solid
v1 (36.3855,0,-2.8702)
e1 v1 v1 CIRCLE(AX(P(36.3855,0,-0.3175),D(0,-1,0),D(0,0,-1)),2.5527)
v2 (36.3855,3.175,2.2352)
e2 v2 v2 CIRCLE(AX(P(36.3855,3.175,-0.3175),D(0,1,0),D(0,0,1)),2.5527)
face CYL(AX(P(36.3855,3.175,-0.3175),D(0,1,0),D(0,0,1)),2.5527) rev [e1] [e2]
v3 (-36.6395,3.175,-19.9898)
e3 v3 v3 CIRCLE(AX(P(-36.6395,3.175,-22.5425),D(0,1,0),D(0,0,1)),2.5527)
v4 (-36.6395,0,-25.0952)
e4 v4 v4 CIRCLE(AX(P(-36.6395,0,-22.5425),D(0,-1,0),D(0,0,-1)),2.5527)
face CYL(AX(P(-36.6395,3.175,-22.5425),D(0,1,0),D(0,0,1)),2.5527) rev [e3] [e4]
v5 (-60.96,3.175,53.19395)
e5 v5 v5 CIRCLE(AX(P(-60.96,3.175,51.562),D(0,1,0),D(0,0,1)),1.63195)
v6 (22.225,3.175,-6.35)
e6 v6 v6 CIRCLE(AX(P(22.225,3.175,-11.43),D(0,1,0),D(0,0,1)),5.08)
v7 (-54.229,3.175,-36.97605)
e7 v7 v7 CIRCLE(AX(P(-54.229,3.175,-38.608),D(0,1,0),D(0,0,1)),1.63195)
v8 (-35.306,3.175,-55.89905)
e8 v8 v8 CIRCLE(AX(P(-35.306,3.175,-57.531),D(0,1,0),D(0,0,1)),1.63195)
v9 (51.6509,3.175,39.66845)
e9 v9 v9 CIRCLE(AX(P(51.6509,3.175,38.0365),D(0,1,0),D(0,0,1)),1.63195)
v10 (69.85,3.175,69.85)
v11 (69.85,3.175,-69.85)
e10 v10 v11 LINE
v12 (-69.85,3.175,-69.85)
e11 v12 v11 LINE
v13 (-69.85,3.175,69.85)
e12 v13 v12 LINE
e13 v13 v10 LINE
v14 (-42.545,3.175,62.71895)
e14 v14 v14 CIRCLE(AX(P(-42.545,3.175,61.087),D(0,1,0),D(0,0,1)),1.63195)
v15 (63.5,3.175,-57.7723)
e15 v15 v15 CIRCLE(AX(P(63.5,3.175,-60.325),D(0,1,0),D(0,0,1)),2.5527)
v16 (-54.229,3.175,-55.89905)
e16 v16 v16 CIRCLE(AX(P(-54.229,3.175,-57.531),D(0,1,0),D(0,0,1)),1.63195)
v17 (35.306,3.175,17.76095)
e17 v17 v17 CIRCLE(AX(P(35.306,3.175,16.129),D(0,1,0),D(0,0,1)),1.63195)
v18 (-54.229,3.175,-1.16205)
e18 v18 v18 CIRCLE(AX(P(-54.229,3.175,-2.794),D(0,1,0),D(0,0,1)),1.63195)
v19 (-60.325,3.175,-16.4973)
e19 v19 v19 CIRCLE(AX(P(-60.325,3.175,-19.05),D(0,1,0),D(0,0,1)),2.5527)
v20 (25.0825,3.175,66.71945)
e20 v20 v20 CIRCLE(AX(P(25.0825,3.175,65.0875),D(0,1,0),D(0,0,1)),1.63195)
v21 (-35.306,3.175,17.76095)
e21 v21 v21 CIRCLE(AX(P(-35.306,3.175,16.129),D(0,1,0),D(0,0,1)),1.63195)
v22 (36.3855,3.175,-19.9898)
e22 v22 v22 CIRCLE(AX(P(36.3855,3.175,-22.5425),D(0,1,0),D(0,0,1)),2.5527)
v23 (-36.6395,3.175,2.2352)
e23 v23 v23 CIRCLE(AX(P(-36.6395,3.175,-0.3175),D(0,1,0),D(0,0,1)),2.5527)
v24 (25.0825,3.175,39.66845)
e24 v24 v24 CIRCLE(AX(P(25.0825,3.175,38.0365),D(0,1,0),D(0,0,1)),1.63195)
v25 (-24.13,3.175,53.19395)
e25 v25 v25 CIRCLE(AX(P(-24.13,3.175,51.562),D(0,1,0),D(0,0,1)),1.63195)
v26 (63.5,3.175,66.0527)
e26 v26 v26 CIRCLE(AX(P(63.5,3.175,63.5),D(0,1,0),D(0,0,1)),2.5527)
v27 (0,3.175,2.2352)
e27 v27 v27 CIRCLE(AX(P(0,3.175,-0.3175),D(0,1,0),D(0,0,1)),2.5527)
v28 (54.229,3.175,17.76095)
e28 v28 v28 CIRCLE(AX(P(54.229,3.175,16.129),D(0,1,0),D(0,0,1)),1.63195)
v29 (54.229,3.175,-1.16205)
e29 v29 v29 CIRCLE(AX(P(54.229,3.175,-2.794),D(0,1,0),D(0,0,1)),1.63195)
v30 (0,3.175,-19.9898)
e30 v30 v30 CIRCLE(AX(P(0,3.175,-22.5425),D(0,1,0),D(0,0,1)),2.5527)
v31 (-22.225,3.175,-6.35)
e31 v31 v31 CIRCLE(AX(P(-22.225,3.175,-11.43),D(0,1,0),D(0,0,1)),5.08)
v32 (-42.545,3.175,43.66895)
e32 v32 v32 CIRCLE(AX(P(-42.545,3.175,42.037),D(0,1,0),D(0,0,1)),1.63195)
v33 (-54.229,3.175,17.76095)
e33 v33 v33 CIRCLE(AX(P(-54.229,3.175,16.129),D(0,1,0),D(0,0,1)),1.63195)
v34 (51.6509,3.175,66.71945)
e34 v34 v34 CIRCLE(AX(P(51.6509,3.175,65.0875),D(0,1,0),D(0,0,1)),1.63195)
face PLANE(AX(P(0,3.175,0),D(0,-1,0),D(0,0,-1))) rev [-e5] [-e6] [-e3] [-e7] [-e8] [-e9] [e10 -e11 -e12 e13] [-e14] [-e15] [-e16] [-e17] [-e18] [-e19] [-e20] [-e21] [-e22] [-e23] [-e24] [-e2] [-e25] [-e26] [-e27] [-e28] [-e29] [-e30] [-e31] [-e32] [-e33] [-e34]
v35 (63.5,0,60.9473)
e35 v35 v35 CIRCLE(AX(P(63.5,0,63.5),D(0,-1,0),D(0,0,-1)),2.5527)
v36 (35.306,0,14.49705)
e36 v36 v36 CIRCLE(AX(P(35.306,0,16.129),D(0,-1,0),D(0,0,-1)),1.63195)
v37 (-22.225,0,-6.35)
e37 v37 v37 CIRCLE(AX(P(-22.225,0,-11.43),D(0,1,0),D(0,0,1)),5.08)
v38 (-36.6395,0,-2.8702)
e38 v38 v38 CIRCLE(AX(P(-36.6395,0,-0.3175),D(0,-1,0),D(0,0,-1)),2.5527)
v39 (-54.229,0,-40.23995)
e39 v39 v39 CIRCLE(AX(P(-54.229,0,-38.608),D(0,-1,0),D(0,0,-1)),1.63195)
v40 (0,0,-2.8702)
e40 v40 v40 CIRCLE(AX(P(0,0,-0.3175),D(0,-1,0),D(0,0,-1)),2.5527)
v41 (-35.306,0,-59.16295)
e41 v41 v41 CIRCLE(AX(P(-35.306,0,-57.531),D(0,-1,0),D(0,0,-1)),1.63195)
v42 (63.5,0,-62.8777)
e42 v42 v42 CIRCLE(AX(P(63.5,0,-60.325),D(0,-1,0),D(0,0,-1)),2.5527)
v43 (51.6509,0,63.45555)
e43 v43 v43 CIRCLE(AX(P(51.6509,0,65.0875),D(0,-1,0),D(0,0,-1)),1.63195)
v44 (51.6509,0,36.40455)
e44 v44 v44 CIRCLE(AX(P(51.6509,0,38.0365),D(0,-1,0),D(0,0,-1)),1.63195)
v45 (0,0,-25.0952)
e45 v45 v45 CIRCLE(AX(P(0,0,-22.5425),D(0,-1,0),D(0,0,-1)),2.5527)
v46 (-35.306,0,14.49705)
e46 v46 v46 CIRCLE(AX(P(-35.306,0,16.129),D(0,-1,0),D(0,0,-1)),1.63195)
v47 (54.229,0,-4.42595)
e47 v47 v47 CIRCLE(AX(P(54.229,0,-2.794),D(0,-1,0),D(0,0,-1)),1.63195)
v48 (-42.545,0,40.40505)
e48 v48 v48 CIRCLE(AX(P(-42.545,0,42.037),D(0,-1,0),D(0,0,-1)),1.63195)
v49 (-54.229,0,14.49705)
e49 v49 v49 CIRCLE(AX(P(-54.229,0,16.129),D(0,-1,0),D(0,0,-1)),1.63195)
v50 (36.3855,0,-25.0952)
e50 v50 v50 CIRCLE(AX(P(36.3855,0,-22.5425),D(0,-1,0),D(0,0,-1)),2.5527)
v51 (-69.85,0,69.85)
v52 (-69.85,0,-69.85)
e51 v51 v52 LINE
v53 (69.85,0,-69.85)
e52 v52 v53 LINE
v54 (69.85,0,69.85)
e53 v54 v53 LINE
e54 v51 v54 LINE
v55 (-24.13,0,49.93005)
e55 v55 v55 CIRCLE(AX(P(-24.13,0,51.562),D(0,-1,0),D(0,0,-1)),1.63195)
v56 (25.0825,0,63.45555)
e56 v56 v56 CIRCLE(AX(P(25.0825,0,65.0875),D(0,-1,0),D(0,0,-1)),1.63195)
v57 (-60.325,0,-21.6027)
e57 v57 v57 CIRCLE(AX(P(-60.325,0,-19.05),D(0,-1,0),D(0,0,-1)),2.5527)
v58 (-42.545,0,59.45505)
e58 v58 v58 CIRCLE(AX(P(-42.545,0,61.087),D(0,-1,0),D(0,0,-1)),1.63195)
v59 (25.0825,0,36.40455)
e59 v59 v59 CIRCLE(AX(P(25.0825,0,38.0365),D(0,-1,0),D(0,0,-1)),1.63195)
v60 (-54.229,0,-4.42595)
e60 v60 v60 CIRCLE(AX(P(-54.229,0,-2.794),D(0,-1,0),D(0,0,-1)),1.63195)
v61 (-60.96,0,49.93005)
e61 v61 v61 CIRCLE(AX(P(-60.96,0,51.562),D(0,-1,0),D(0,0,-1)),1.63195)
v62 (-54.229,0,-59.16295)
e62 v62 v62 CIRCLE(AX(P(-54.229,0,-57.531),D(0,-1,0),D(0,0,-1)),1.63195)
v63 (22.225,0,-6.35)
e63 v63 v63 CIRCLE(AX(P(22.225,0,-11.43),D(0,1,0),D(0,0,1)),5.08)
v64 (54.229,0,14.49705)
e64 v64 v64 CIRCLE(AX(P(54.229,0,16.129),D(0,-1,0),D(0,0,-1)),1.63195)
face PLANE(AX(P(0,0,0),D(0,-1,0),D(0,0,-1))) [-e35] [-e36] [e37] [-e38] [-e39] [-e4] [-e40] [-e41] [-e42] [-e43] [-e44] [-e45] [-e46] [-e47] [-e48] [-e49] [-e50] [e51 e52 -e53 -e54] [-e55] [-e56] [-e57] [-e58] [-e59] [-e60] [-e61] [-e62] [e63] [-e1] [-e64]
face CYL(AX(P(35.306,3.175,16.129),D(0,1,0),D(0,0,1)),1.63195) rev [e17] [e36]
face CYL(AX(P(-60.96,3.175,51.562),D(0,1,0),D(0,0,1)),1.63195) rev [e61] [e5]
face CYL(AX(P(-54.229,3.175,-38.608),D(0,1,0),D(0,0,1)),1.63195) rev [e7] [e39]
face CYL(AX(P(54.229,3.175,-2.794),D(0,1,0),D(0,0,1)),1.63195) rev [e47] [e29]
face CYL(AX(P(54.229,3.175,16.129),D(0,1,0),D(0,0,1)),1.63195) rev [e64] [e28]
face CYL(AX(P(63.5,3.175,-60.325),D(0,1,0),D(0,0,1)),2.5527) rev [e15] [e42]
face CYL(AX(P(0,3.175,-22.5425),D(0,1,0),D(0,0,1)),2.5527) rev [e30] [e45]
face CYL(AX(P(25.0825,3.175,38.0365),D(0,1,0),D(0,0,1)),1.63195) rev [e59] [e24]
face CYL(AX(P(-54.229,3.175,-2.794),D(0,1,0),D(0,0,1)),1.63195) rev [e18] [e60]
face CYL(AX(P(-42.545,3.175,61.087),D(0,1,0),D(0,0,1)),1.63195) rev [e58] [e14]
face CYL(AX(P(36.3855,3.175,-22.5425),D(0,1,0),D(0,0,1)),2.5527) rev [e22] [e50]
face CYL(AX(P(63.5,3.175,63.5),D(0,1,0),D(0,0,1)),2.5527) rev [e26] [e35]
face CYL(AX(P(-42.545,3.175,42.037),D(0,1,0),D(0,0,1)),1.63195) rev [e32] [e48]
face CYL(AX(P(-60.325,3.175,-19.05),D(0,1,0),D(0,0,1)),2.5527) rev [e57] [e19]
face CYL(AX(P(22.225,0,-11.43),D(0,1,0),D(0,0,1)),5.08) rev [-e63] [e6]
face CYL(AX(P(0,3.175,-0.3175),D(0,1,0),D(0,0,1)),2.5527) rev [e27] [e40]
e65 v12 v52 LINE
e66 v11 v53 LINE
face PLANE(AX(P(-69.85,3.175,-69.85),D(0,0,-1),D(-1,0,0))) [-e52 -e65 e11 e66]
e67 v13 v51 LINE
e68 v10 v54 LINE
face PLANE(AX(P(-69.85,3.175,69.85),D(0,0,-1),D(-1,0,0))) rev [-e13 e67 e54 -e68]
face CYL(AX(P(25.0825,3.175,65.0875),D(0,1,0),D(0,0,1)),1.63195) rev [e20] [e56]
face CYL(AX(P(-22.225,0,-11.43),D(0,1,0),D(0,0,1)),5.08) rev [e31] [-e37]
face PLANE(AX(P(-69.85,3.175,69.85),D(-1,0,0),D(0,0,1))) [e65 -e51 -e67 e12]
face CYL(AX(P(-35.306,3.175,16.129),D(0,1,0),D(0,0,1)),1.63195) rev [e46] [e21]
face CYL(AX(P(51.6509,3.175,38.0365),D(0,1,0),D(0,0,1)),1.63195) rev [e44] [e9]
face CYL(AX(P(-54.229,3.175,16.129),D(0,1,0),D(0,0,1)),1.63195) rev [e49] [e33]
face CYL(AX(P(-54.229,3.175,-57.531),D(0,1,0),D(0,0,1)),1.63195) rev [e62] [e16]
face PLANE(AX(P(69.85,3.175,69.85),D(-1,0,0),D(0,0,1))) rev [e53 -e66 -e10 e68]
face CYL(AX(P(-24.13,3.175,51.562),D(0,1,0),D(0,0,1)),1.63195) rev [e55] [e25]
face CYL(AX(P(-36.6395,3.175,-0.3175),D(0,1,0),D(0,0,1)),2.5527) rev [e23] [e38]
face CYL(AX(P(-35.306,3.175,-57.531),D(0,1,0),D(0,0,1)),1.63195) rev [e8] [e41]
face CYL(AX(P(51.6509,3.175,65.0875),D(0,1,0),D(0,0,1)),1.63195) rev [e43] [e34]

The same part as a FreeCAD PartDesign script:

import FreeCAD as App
import Part
import Sketcher
Q = App.Units.Quantity


def add_polygon(sketch, points):
    """Adds a closed chain of lines whose ends are joined by coincident constraints."""
    first, n = sketch.GeometryCount, len(points)
    for a, b in zip(points, points[1:] + points[:1]):
        sketch.addGeometry(Part.LineSegment(App.Vector(*a, 0), App.Vector(*b, 0)), False)
    for i in range(n):
        sketch.addConstraint(Sketcher.Constraint("Coincident", first + i, 2, first + (i + 1) % n, 1))

doc = App.newDocument("Part")
body = doc.addObject("PartDesign::Body", "Body")

# Sketch on XZ plane
sketch1 = body.newObject("Sketcher::SketchObject", "Sketch")
sketch1.AttachmentSupport = (doc.getObject("XZ_Plane"), [""])
sketch1.MapMode = "FlatFace"
add_polygon(sketch1, [(-70, -70), (-70, 70), (70, 70), (70, -70)])  # lines 0-3
sketch1.addConstraint([
    Sketcher.Constraint("Vertical", 0),
    Sketcher.Constraint("Horizontal", 1),
    Sketcher.Constraint("Vertical", 2),
    Sketcher.Constraint("Horizontal", 3),
    Sketcher.Constraint("Symmetric", 0, 2, 2, 2, -1, 1),
    Sketcher.Constraint("Equal", 3, 0),
    Sketcher.Constraint("DistanceX", 1, 1, 1, 2, Q("5.5 in")),
])
pad1 = body.newObject("PartDesign::Pad", "Pad")
pad1.Profile = sketch1
pad1.Length = Q("0.125 in")
pad1.Reversed = True

# Sketch on XZ plane
sketch2 = body.newObject("Sketcher::SketchObject", "Sketch001")
sketch2.AttachmentSupport = (doc.getObject("XZ_Plane"), [""])
sketch2.MapMode = "FlatFace"
sketch2.AttachmentOffset = App.Placement(App.Vector(0, 0, -0.125 * 25.4), App.Rotation())
sketch2.addGeometry([
    Part.Circle(App.Vector(-22, -11, 0), App.Vector(0, 0, 1), 5),
    Part.Circle(App.Vector(22, -11, 0), App.Vector(0, 0, 1), 5),
], False)
sketch2.addConstraint([
    Sketcher.Constraint("Equal", 0, 1),
    Sketcher.Constraint("Symmetric", 0, 3, 1, 3, -2),
    Sketcher.Constraint("Diameter", 0, Q("0.4 in")),
    Sketcher.Constraint("DistanceY", 0, 3, -1, 1, Q("0.45 in")),
    Sketcher.Constraint("DistanceX", 0, 3, 1, 3, Q("1.75 in")),
])
pocket1 = body.newObject("PartDesign::Pocket", "Pocket")
pocket1.Profile = sketch2
pocket1.Type = "ThroughAll"
pocket1.Reversed = True

# Sketch on XZ plane
sketch3 = body.newObject("Sketcher::SketchObject", "Sketch002")
sketch3.AttachmentSupport = (doc.getObject("XZ_Plane"), [""])
sketch3.MapMode = "FlatFace"
sketch3.AttachmentOffset = App.Placement(App.Vector(0, 0, -0.125 * 25.4), App.Rotation())
sketch3.addGeometry([
    Part.Circle(App.Vector(63.5, 63.5, 0), App.Vector(0, 0, 1), 2.6),
    Part.Circle(App.Vector(-60.3, -19.1, 0), App.Vector(0, 0, 1), 2.6),
    Part.Circle(App.Vector(63.5, -60.3, 0), App.Vector(0, 0, 1), 2.6),
], False)
sketch3.addConstraint([
    Sketcher.Constraint("Equal", 0, 1),
    Sketcher.Constraint("Equal", 1, 2),
    Sketcher.Constraint("Vertical", 0, 3, 2, 3),
    Sketcher.Constraint("Diameter", 0, Q("0.201 in")),
    Sketcher.Constraint("DistanceX", -1, 1, 0, 3, Q("2.5 in")),
    Sketcher.Constraint("DistanceY", -1, 1, 0, 3, Q("2.5 in")),
    Sketcher.Constraint("DistanceY", 1, 3, -1, 1, Q("0.75 in")),
    Sketcher.Constraint("DistanceX", 1, 3, -1, 1, Q("2.375 in")),
    Sketcher.Constraint("DistanceY", 2, 3, -1, 1, Q("2.375 in")),
])
doc.recompute()
hole = body.newObject("PartDesign::Hole", "Hole")
hole.Profile = sketch3
hole.ThreadType = "None"
hole.Diameter = Q("0.201 in")
hole.DepthType = "ThroughAll"
hole.Reversed = True

# Sketch on XZ plane
sketch4 = body.newObject("Sketcher::SketchObject", "Sketch003")
sketch4.AttachmentSupport = (doc.getObject("XZ_Plane"), [""])
sketch4.MapMode = "FlatFace"
sketch4.AttachmentOffset = App.Placement(App.Vector(0, 0, -0.125 * 25.4), App.Rotation())
sketch4.addGeometry([
    Part.Circle(App.Vector(-61, 51.6, 0), App.Vector(0, 0, 1), 1.6),
    Part.Circle(App.Vector(-42.5, 42, 0), App.Vector(0, 0, 1), 1.6),
    Part.Circle(App.Vector(-24.1, 51.6, 0), App.Vector(0, 0, 1), 1.6),
    Part.Circle(App.Vector(-42.5, 61.1, 0), App.Vector(0, 0, 1), 1.6),
], False)
sketch4.addConstraint([
    Sketcher.Constraint("Equal", 0, 1),
    Sketcher.Constraint("Equal", 1, 2),
    Sketcher.Constraint("Equal", 2, 3),
    Sketcher.Constraint("Horizontal", 0, 3, 2, 3),
    Sketcher.Constraint("Vertical", 1, 3, 3, 3),
    Sketcher.Constraint("Diameter", 0, Q("0.1285 in")),
    Sketcher.Constraint("DistanceX", 0, 3, -1, 1, Q("2.4 in")),
    Sketcher.Constraint("DistanceY", -1, 1, 0, 3, Q("2.03 in")),
    Sketcher.Constraint("DistanceX", 2, 3, -1, 1, Q("0.95 in")),
    Sketcher.Constraint("DistanceY", 1, 3, 3, 3, Q("0.75 in")),
    Sketcher.Constraint("DistanceX", 1, 3, -1, 1, Q("1.675 in")),
    Sketcher.Constraint("DistanceY", -1, 1, 1, 3, Q("1.655 in")),
])
doc.recompute()
hole2 = body.newObject("PartDesign::Hole", "Hole001")
hole2.Profile = sketch4
hole2.ThreadType = "None"
hole2.Diameter = Q("0.1285 in")
hole2.DepthType = "Dimension"
hole2.Depth = Q("0.3 in")
hole2.DrillPoint = "Angled"
hole2.DrillPointAngle = 118
hole2.Reversed = True

# Sketch on XZ plane
sketch5 = body.newObject("Sketcher::SketchObject", "Sketch004")
sketch5.AttachmentSupport = (doc.getObject("XZ_Plane"), [""])
sketch5.MapMode = "FlatFace"
sketch5.AttachmentOffset = App.Placement(App.Vector(0, 0, -0.125 * 25.4), App.Rotation())
sketch5.addGeometry([
    Part.Circle(App.Vector(25.1, 38, 0), App.Vector(0, 0, 1), 1.6),
    Part.Circle(App.Vector(51.7, 38, 0), App.Vector(0, 0, 1), 1.6),
    Part.Circle(App.Vector(25.1, 65.1, 0), App.Vector(0, 0, 1), 1.6),
    Part.Circle(App.Vector(51.7, 65.1, 0), App.Vector(0, 0, 1), 1.6),
], False)
sketch5.addConstraint([
    Sketcher.Constraint("Equal", 0, 1),
    Sketcher.Constraint("Equal", 1, 2),
    Sketcher.Constraint("Equal", 2, 3),
    Sketcher.Constraint("Horizontal", 0, 3, 1, 3),
    Sketcher.Constraint("Horizontal", 2, 3, 3, 3),
    Sketcher.Constraint("Vertical", 0, 3, 2, 3),
    Sketcher.Constraint("Vertical", 1, 3, 3, 3),
    Sketcher.Constraint("Diameter", 0, Q("0.1285 in")),
    Sketcher.Constraint("DistanceY", -1, 1, 2, 3, Q("2.5625 in")),
    Sketcher.Constraint("DistanceX", 0, 3, 1, 3, Q("1.046 in")),
    Sketcher.Constraint("DistanceY", 0, 3, 2, 3, Q("1.065 in")),
    Sketcher.Constraint("DistanceX", -1, 1, 0, 3, Q("0.9875 in")),
])
doc.recompute()
hole3 = body.newObject("PartDesign::Hole", "Hole002")
hole3.Profile = sketch5
hole3.ThreadType = "None"
hole3.Diameter = Q("0.1285 in")
hole3.DepthType = "Dimension"
hole3.Depth = Q("0.3 in")
hole3.DrillPoint = "Angled"
hole3.DrillPointAngle = 118
hole3.Reversed = True

# Sketch on XZ plane
sketch6 = body.newObject("Sketcher::SketchObject", "Sketch005")
sketch6.AttachmentSupport = (doc.getObject("XZ_Plane"), [""])
sketch6.MapMode = "FlatFace"
sketch6.AttachmentOffset = App.Placement(App.Vector(0, 0, -0.125 * 25.4), App.Rotation())
sketch6.addGeometry([
    Part.Circle(App.Vector(-36.6, -22.5, 0), App.Vector(0, 0, 1), 2.6),  # 0
    Part.Circle(App.Vector(36.4, -22.5, 0), App.Vector(0, 0, 1), 2.6),  # 1
    Part.Circle(App.Vector(36.4, -0.3, 0), App.Vector(0, 0, 1), 2.6),  # 2
    Part.Circle(App.Vector(-36.6, -0.3, 0), App.Vector(0, 0, 1), 2.6),  # 3
    Part.Circle(App.Vector(0, -0.3, 0), App.Vector(0, 0, 1), 2.6),  # 4
    Part.Circle(App.Vector(0, -22.5, 0), App.Vector(0, 0, 1), 2.6),  # 5
], False)
sketch6.addConstraint([
    Sketcher.Constraint("Equal", 0, 1),
    Sketcher.Constraint("Equal", 1, 2),
    Sketcher.Constraint("Equal", 2, 3),
    Sketcher.Constraint("Equal", 3, 4),
    Sketcher.Constraint("Equal", 4, 5),
    Sketcher.Constraint("PointOnObject", 4, 3, -2),
    Sketcher.Constraint("PointOnObject", 5, 3, -2),
    Sketcher.Constraint("Horizontal", 0, 3, 1, 3),
    Sketcher.Constraint("Horizontal", 2, 3, 3, 3),
    Sketcher.Constraint("Horizontal", 3, 3, 4, 3),
    Sketcher.Constraint("Horizontal", 1, 3, 5, 3),
    Sketcher.Constraint("Vertical", 1, 3, 2, 3),
    Sketcher.Constraint("Vertical", 0, 3, 3, 3),
    Sketcher.Constraint("Diameter", 0, Q("0.201 in")),
    Sketcher.Constraint("DistanceX", 0, 3, 1, 3, Q("2.875 in")),
    Sketcher.Constraint("DistanceY", 1, 3, 2, 3, Q("0.875 in")),
    Sketcher.Constraint("DistanceX", 0, 3, -1, 1, Q("1.4425 in")),
    Sketcher.Constraint("DistanceY", 0, 3, -1, 1, Q("0.8875 in")),
])
doc.recompute()
hole4 = body.newObject("PartDesign::Hole", "Hole003")
hole4.Profile = sketch6
hole4.ThreadType = "None"
hole4.Diameter = Q("0.201 in")
hole4.DepthType = "Dimension"
hole4.Depth = Q("0.3 in")
hole4.DrillPoint = "Angled"
hole4.DrillPointAngle = 118
hole4.Reversed = True

# Sketch on XZ plane
sketch7 = body.newObject("Sketcher::SketchObject", "Sketch006")
sketch7.AttachmentSupport = (doc.getObject("XZ_Plane"), [""])
sketch7.MapMode = "FlatFace"
sketch7.AttachmentOffset = App.Placement(App.Vector(0, 0, -0.125 * 25.4), App.Rotation())
sketch7.addGeometry([
    Part.Circle(App.Vector(-35.3, -57.5, 0), App.Vector(0, 0, 1), 1.6),  # 0
    Part.Circle(App.Vector(-54.2, -57.5, 0), App.Vector(0, 0, 1), 1.6),  # 1
    Part.Circle(App.Vector(-54.2, -38.6, 0), App.Vector(0, 0, 1), 1.6),  # 2
    Part.Circle(App.Vector(-54.2, -2.8, 0), App.Vector(0, 0, 1), 1.6),  # 3
    Part.Circle(App.Vector(-54.2, 16.1, 0), App.Vector(0, 0, 1), 1.6),  # 4
    Part.Circle(App.Vector(-35.3, 16.1, 0), App.Vector(0, 0, 1), 1.6),  # 5
    Part.Circle(App.Vector(35.3, 16.1, 0), App.Vector(0, 0, 1), 1.6),  # 6
    Part.Circle(App.Vector(54.2, 16.1, 0), App.Vector(0, 0, 1), 1.6),  # 7
    Part.Circle(App.Vector(54.2, -2.8, 0), App.Vector(0, 0, 1), 1.6),  # 8
], False)
sketch7.addConstraint([
    Sketcher.Constraint("Equal", 0, 1),
    Sketcher.Constraint("Equal", 1, 2),
    Sketcher.Constraint("Equal", 2, 3),
    Sketcher.Constraint("Equal", 3, 4),
    Sketcher.Constraint("Equal", 4, 5),
    Sketcher.Constraint("Equal", 5, 6),
    Sketcher.Constraint("Equal", 6, 7),
    Sketcher.Constraint("Equal", 7, 8),
    Sketcher.Constraint("Symmetric", 5, 3, 6, 3, -2),
    Sketcher.Constraint("Symmetric", 4, 3, 7, 3, -2),
    Sketcher.Constraint("Symmetric", 3, 3, 8, 3, -2),
    Sketcher.Constraint("Horizontal", 0, 3, 1, 3),
    Sketcher.Constraint("Horizontal", 4, 3, 5, 3),
    Sketcher.Constraint("Vertical", 1, 3, 2, 3),
    Sketcher.Constraint("Vertical", 2, 3, 3, 3),
    Sketcher.Constraint("Vertical", 3, 3, 4, 3),
    Sketcher.Constraint("Vertical", 0, 3, 5, 3),
    Sketcher.Constraint("Diameter", 0, Q("0.1285 in")),
    Sketcher.Constraint("DistanceY", 1, 3, 4, 3, Q("2.9 in")),
    Sketcher.Constraint("DistanceX", 0, 3, -1, 1, Q("1.39 in")),
    Sketcher.Constraint("DistanceY", 2, 3, -1, 1, Q("1.52 in")),
    Sketcher.Constraint("DistanceY", 3, 3, -1, 1, Q("0.11 in")),
    Sketcher.Constraint("DistanceX", 4, 3, 7, 3, Q("4.27 in")),
    Sketcher.Constraint("DistanceY", 0, 3, -1, 1, Q("2.265 in")),
])
doc.recompute()
hole5 = body.newObject("PartDesign::Hole", "Hole004")
hole5.Profile = sketch7
hole5.ThreadType = "None"
hole5.Diameter = Q("0.1285 in")
hole5.DepthType = "Dimension"
hole5.Depth = Q("0.3 in")
hole5.DrillPoint = "Angled"
hole5.DrillPointAngle = 118
hole5.Reversed = True

doc.recompute()
